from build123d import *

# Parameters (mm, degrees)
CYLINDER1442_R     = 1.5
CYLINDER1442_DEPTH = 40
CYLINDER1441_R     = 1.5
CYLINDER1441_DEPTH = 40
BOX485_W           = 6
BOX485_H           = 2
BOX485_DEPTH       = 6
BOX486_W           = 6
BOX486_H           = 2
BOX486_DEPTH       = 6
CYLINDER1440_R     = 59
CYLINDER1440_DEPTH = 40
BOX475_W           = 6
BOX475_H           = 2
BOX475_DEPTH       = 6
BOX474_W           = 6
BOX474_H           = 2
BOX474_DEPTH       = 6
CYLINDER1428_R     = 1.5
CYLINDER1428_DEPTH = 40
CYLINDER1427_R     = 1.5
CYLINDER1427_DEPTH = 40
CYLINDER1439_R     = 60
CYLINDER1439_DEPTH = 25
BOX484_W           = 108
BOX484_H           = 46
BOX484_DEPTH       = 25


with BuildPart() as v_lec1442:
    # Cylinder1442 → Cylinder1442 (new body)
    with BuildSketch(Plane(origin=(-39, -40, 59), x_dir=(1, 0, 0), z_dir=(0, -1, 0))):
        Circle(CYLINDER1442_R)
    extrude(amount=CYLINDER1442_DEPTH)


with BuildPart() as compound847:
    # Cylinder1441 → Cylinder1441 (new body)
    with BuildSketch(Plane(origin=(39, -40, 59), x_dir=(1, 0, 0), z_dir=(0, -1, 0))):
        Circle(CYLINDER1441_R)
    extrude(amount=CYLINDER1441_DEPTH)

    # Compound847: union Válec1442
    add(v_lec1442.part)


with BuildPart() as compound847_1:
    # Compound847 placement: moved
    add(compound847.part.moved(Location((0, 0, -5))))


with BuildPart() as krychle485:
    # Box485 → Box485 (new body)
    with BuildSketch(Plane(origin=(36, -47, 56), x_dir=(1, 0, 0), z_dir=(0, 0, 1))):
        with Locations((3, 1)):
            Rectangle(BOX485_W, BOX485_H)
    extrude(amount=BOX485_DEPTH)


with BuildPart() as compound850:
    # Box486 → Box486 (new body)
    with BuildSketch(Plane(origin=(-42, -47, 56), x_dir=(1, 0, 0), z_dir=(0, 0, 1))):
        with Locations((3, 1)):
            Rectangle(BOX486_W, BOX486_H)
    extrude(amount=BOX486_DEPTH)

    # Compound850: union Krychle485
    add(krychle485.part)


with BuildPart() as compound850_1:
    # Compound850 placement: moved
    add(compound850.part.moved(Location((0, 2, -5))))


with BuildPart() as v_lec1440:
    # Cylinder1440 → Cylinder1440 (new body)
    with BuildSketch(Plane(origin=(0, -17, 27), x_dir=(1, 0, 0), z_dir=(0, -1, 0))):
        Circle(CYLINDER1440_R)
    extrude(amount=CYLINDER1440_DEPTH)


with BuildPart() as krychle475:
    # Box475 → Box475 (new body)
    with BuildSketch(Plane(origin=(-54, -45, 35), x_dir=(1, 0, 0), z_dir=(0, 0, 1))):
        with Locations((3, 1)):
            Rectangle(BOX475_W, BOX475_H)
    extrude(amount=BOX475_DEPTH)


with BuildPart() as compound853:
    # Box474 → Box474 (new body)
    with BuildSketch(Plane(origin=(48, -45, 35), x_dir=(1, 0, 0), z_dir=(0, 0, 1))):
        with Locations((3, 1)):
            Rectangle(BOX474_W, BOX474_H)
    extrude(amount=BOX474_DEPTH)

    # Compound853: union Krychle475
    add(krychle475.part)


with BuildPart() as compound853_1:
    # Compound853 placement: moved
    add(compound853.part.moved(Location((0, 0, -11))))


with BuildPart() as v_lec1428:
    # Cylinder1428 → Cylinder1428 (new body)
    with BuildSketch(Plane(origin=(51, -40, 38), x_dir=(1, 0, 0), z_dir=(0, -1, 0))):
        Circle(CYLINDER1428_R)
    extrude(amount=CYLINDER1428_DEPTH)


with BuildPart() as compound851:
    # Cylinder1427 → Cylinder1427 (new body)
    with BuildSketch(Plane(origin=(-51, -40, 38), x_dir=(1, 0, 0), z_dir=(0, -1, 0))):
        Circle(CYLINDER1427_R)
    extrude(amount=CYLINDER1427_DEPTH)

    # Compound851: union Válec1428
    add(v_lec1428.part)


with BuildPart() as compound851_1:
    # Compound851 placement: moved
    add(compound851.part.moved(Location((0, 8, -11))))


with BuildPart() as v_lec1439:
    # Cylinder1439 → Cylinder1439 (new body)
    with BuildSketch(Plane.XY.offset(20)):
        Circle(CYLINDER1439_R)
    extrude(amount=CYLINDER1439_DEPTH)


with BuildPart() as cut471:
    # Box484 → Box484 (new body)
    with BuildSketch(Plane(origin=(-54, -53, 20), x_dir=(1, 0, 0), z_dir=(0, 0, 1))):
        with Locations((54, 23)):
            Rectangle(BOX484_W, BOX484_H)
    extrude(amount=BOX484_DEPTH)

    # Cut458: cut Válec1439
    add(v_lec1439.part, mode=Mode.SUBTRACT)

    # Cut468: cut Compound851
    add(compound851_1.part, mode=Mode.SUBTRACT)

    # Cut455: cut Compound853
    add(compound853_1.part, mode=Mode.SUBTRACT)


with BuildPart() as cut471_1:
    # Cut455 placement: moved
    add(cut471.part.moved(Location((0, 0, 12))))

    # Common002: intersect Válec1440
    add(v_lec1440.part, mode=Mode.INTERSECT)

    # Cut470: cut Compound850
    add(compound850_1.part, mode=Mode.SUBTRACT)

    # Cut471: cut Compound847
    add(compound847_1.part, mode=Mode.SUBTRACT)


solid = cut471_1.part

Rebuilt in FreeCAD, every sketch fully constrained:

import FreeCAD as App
import Part
import Sketcher
from FreeCAD import Vector
Q = App.Units.Quantity


def add_polygon(sketch, points):
    """Adds a closed chain of lines whose ends are joined by coincident constraints."""
    first, n = sketch.GeometryCount, len(points)
    for a, b in zip(points, points[1:] + points[:1]):
        sketch.addGeometry(Part.LineSegment(App.Vector(*a, 0), App.Vector(*b, 0)), False)
    for i in range(n):
        sketch.addConstraint(Sketcher.Constraint("Coincident", first + i, 2, first + (i + 1) % n, 1))

doc = App.newDocument("Part")
body = doc.addObject("PartDesign::Body", "Body")

# Sketch on XZ plane
sketch1 = doc.addObject("Sketcher::SketchObject", "Sketch")
body.addObject(sketch1)
sketch1.AttachmentSupport = (doc.XZ_Plane, [""])
sketch1.MapMode = "FlatFace"
sketch1.AttachmentOffset = App.Placement(Vector(0, 0, 40), App.Rotation())
sketch1.addGeometry(Part.Circle(Vector(-39, 59, 0), Vector(0, 0, 1), 1.5), False)
sketch1.addConstraint([
    Sketcher.Constraint("Diameter", 0, Q("3 mm")),
    Sketcher.Constraint("DistanceX", 0, 3, -1, 1, Q("39 mm")),
    Sketcher.Constraint("DistanceY", -1, 1, 0, 3, Q("59 mm")),
])
pad1 = doc.addObject("PartDesign::Pad", "Pad")
body.addObject(pad1)
pad1.Profile = sketch1
pad1.Length = 40
body2 = doc.addObject("PartDesign::Body", "Body001")
body2.AllowCompound = True

# Sketch on XZ plane
sketch2 = doc.addObject("Sketcher::SketchObject", "Sketch001")
body2.addObject(sketch2)
sketch2.AttachmentSupport = (doc.getObject("XZ_Plane001"), [""])
sketch2.MapMode = "FlatFace"
sketch2.AttachmentOffset = App.Placement(Vector(0, 0, 40), App.Rotation())
sketch2.addGeometry(Part.Circle(Vector(39, 59, 0), Vector(0, 0, 1), 1.5), False)
sketch2.addConstraint([
    Sketcher.Constraint("Diameter", 0, Q("3 mm")),
    Sketcher.Constraint("DistanceX", -1, 1, 0, 3, Q("39 mm")),
    Sketcher.Constraint("DistanceY", -1, 1, 0, 3, Q("59 mm")),
])
pad2 = doc.addObject("PartDesign::Pad", "Pad001")
body2.addObject(pad2)
pad2.Profile = sketch2
pad2.Length = 40
doc.recompute()

boolean = doc.addObject("PartDesign::Boolean", "Boolean")
body2.addObject(boolean)
boolean.Type = "Fuse"
boolean.addObjects([body])
body3 = doc.addObject("PartDesign::Body", "Body002")
body3.AllowCompound = True
doc.recompute()

body2.Placement = App.Placement(Vector(0, 0, -5), App.Rotation(Vector(0, 0, 1), 0))
boolean2 = doc.addObject("PartDesign::Boolean", "Boolean001")
body3.addObject(boolean2)
boolean2.Type = "Fuse"
boolean2.addObjects([body2])
body4 = doc.addObject("PartDesign::Body", "Body003")

# Sketch on XY plane
sketch3 = doc.addObject("Sketcher::SketchObject", "Sketch002")
body4.addObject(sketch3)
sketch3.AttachmentSupport = (doc.getObject("XY_Plane003"), [""])
sketch3.MapMode = "FlatFace"
sketch3.AttachmentOffset = App.Placement(Vector(0, 0, 56), App.Rotation())
add_polygon(sketch3, [(36, -45), (36, -47), (42, -47), (42, -45)])  # lines 0-3
sketch3.addConstraint([
    Sketcher.Constraint("Vertical", 0),
    Sketcher.Constraint("Horizontal", 1),
    Sketcher.Constraint("Vertical", 2),
    Sketcher.Constraint("Horizontal", 3),
    Sketcher.Constraint("DistanceX", 1, 1, 1, 2, Q("6 mm")),
    Sketcher.Constraint("DistanceY", 0, 2, 0, 1, Q("2 mm")),
    Sketcher.Constraint("DistanceX", -1, 1, 0, 2, Q("36 mm")),
    Sketcher.Constraint("DistanceY", 0, 2, -1, 1, Q("47 mm")),
])
pad3 = doc.addObject("PartDesign::Pad", "Pad002")
body4.addObject(pad3)
pad3.Profile = sketch3
pad3.Length = 6
body5 = doc.addObject("PartDesign::Body", "Body004")
body5.AllowCompound = True

# Sketch on XY plane
sketch4 = doc.addObject("Sketcher::SketchObject", "Sketch003")
body5.addObject(sketch4)
sketch4.AttachmentSupport = (doc.getObject("XY_Plane004"), [""])
sketch4.MapMode = "FlatFace"
sketch4.AttachmentOffset = App.Placement(Vector(0, 0, 56), App.Rotation())
add_polygon(sketch4, [(-42, -45), (-42, -47), (-36, -47), (-36, -45)])  # lines 0-3
sketch4.addConstraint([
    Sketcher.Constraint("Vertical", 0),
    Sketcher.Constraint("Horizontal", 1),
    Sketcher.Constraint("Vertical", 2),
    Sketcher.Constraint("Horizontal", 3),
    Sketcher.Constraint("DistanceX", 1, 1, 1, 2, Q("6 mm")),
    Sketcher.Constraint("DistanceY", 0, 2, 0, 1, Q("2 mm")),
    Sketcher.Constraint("DistanceX", 0, 2, -1, 1, Q("42 mm")),
    Sketcher.Constraint("DistanceY", 0, 2, -1, 1, Q("47 mm")),
])
pad4 = doc.addObject("PartDesign::Pad", "Pad003")
body5.addObject(pad4)
pad4.Profile = sketch4
pad4.Length = 6
doc.recompute()

boolean3 = doc.addObject("PartDesign::Boolean", "Boolean002")
body5.addObject(boolean3)
boolean3.Type = "Fuse"
boolean3.addObjects([body4])
body6 = doc.addObject("PartDesign::Body", "Body005")
body6.AllowCompound = True
doc.recompute()

body5.Placement = App.Placement(Vector(0, 2, -5), App.Rotation(Vector(0, 0, 1), 0))
boolean4 = doc.addObject("PartDesign::Boolean", "Boolean003")
body6.addObject(boolean4)
boolean4.Type = "Fuse"
boolean4.addObjects([body5])
body7 = doc.addObject("PartDesign::Body", "Body006")

# Sketch on XZ plane
sketch5 = doc.addObject("Sketcher::SketchObject", "Sketch004")
body7.addObject(sketch5)
sketch5.AttachmentSupport = (doc.getObject("XZ_Plane006"), [""])
sketch5.MapMode = "FlatFace"
sketch5.AttachmentOffset = App.Placement(Vector(0, 0, 17), App.Rotation())
sketch5.addGeometry(Part.Circle(Vector(0, 27, 0), Vector(0, 0, 1), 59), False)
sketch5.addConstraint([
    Sketcher.Constraint("PointOnObject", 0, 3, -2),
    Sketcher.Constraint("Diameter", 0, Q("118 mm")),
    Sketcher.Constraint("DistanceY", -1, 1, 0, 3, Q("27 mm")),
])
pad5 = doc.addObject("PartDesign::Pad", "Pad004")
body7.addObject(pad5)
pad5.Profile = sketch5
pad5.Length = 40
body8 = doc.addObject("PartDesign::Body", "Body007")

# Sketch on XY plane
sketch6 = doc.addObject("Sketcher::SketchObject", "Sketch005")
body8.addObject(sketch6)
sketch6.AttachmentSupport = (doc.getObject("XY_Plane007"), [""])
sketch6.MapMode = "FlatFace"
sketch6.AttachmentOffset = App.Placement(Vector(0, 0, 35), App.Rotation())
add_polygon(sketch6, [(-54, -43), (-54, -45), (-48, -45), (-48, -43)])  # lines 0-3
sketch6.addConstraint([
    Sketcher.Constraint("Vertical", 0),
    Sketcher.Constraint("Horizontal", 1),
    Sketcher.Constraint("Vertical", 2),
    Sketcher.Constraint("Horizontal", 3),
    Sketcher.Constraint("DistanceX", 1, 1, 1, 2, Q("6 mm")),
    Sketcher.Constraint("DistanceY", 0, 2, 0, 1, Q("2 mm")),
    Sketcher.Constraint("DistanceX", 0, 2, -1, 1, Q("54 mm")),
    Sketcher.Constraint("DistanceY", 0, 2, -1, 1, Q("45 mm")),
])
pad6 = doc.addObject("PartDesign::Pad", "Pad005")
body8.addObject(pad6)
pad6.Profile = sketch6
pad6.Length = 6
body9 = doc.addObject("PartDesign::Body", "Body008")
body9.AllowCompound = True

# Sketch on XY plane
sketch7 = doc.addObject("Sketcher::SketchObject", "Sketch006")
body9.addObject(sketch7)
sketch7.AttachmentSupport = (doc.getObject("XY_Plane008"), [""])
sketch7.MapMode = "FlatFace"
sketch7.AttachmentOffset = App.Placement(Vector(0, 0, 35), App.Rotation())
add_polygon(sketch7, [(48, -43), (48, -45), (54, -45), (54, -43)])  # lines 0-3
sketch7.addConstraint([
    Sketcher.Constraint("Vertical", 0),
    Sketcher.Constraint("Horizontal", 1),
    Sketcher.Constraint("Vertical", 2),
    Sketcher.Constraint("Horizontal", 3),
    Sketcher.Constraint("DistanceX", 1, 1, 1, 2, Q("6 mm")),
    Sketcher.Constraint("DistanceY", 0, 2, 0, 1, Q("2 mm")),
    Sketcher.Constraint("DistanceX", -1, 1, 0, 2, Q("48 mm")),
    Sketcher.Constraint("DistanceY", 0, 2, -1, 1, Q("45 mm")),
])
pad7 = doc.addObject("PartDesign::Pad", "Pad006")
body9.addObject(pad7)
pad7.Profile = sketch7
pad7.Length = 6
doc.recompute()

boolean5 = doc.addObject("PartDesign::Boolean", "Boolean004")
body9.addObject(boolean5)
boolean5.Type = "Fuse"
boolean5.addObjects([body8])
body10 = doc.addObject("PartDesign::Body", "Body009")
body10.AllowCompound = True
doc.recompute()

body9.Placement = App.Placement(Vector(0, 0, -11), App.Rotation(Vector(0, 0, 1), 0))
boolean6 = doc.addObject("PartDesign::Boolean", "Boolean005")
body10.addObject(boolean6)
boolean6.Type = "Fuse"
boolean6.addObjects([body9])
body11 = doc.addObject("PartDesign::Body", "Body010")

# Sketch on XZ plane
sketch8 = doc.addObject("Sketcher::SketchObject", "Sketch007")
body11.addObject(sketch8)
sketch8.AttachmentSupport = (doc.getObject("XZ_Plane010"), [""])
sketch8.MapMode = "FlatFace"
sketch8.AttachmentOffset = App.Placement(Vector(0, 0, 40), App.Rotation())
sketch8.addGeometry(Part.Circle(Vector(51, 38, 0), Vector(0, 0, 1), 1.5), False)
sketch8.addConstraint([
    Sketcher.Constraint("Diameter", 0, Q("3 mm")),
    Sketcher.Constraint("DistanceX", -1, 1, 0, 3, Q("51 mm")),
    Sketcher.Constraint("DistanceY", -1, 1, 0, 3, Q("38 mm")),
])
pad8 = doc.addObject("PartDesign::Pad", "Pad007")
body11.addObject(pad8)
pad8.Profile = sketch8
pad8.Length = 40
body12 = doc.addObject("PartDesign::Body", "Body011")
body12.AllowCompound = True

# Sketch on XZ plane
sketch9 = doc.addObject("Sketcher::SketchObject", "Sketch008")
body12.addObject(sketch9)
sketch9.AttachmentSupport = (doc.getObject("XZ_Plane011"), [""])
sketch9.MapMode = "FlatFace"
sketch9.AttachmentOffset = App.Placement(Vector(0, 0, 40), App.Rotation())
sketch9.addGeometry(Part.Circle(Vector(-51, 38, 0), Vector(0, 0, 1), 1.5), False)
sketch9.addConstraint([
    Sketcher.Constraint("Diameter", 0, Q("3 mm")),
    Sketcher.Constraint("DistanceX", 0, 3, -1, 1, Q("51 mm")),
    Sketcher.Constraint("DistanceY", -1, 1, 0, 3, Q("38 mm")),
])
pad9 = doc.addObject("PartDesign::Pad", "Pad008")
body12.addObject(pad9)
pad9.Profile = sketch9
pad9.Length = 40
doc.recompute()

boolean7 = doc.addObject("PartDesign::Boolean", "Boolean006")
body12.addObject(boolean7)
boolean7.Type = "Fuse"
boolean7.addObjects([body11])
body13 = doc.addObject("PartDesign::Body", "Body012")
body13.AllowCompound = True
doc.recompute()

body12.Placement = App.Placement(Vector(0, 8, -11), App.Rotation(Vector(0, 0, 1), 0))
boolean8 = doc.addObject("PartDesign::Boolean", "Boolean007")
body13.addObject(boolean8)
boolean8.Type = "Fuse"
boolean8.addObjects([body12])
body14 = doc.addObject("PartDesign::Body", "Body013")

# Sketch on XY plane
sketch10 = doc.addObject("Sketcher::SketchObject", "Sketch009")
body14.addObject(sketch10)
sketch10.AttachmentSupport = (doc.getObject("XY_Plane013"), [""])
sketch10.MapMode = "FlatFace"
sketch10.AttachmentOffset = App.Placement(Vector(0, 0, 20), App.Rotation())
sketch10.addGeometry(Part.Circle(Vector(0, 0, 0), Vector(0, 0, 1), 60), False)
sketch10.addConstraint([
    Sketcher.Constraint("Coincident", 0, 3, -1, 1),
    Sketcher.Constraint("Diameter", 0, Q("120 mm")),
])
pad10 = doc.addObject("PartDesign::Pad", "Pad009")
body14.addObject(pad10)
pad10.Profile = sketch10
pad10.Length = 25
body15 = doc.addObject("PartDesign::Body", "Body014")
body15.AllowCompound = True

# Sketch on XY plane
sketch11 = doc.addObject("Sketcher::SketchObject", "Sketch010")
body15.addObject(sketch11)
sketch11.AttachmentSupport = (doc.getObject("XY_Plane014"), [""])
sketch11.MapMode = "FlatFace"
sketch11.AttachmentOffset = App.Placement(Vector(0, 0, 20), App.Rotation())
add_polygon(sketch11, [(-54, -7), (-54, -53), (54, -53), (54, -7)])  # lines 0-3
sketch11.addConstraint([
    Sketcher.Constraint("Vertical", 0),
    Sketcher.Constraint("Horizontal", 1),
    Sketcher.Constraint("Vertical", 2),
    Sketcher.Constraint("Horizontal", 3),
    Sketcher.Constraint("DistanceX", 1, 1, 1, 2, Q("108 mm")),
    Sketcher.Constraint("DistanceY", 0, 2, 0, 1, Q("46 mm")),
    Sketcher.Constraint("DistanceX", 0, 2, -1, 1, Q("54 mm")),
    Sketcher.Constraint("DistanceY", 0, 2, -1, 1, Q("53 mm")),
])
pad11 = doc.addObject("PartDesign::Pad", "Pad010")
body15.addObject(pad11)
pad11.Profile = sketch11
pad11.Length = 25
doc.recompute()

boolean9 = doc.addObject("PartDesign::Boolean", "Boolean008")
body15.addObject(boolean9)
boolean9.Type = "Cut"
boolean9.addObjects([body14])
doc.recompute()

boolean10 = doc.addObject("PartDesign::Boolean", "Boolean009")
body15.addObject(boolean10)
boolean10.Type = "Cut"
boolean10.addObjects([body13])
doc.recompute()

boolean11 = doc.addObject("PartDesign::Boolean", "Boolean010")
body15.addObject(boolean11)
boolean11.Type = "Cut"
boolean11.addObjects([body10])
body16 = doc.addObject("PartDesign::Body", "Body015")
body16.AllowCompound = True
doc.recompute()

body15.Placement = App.Placement(Vector(0, 0, 12), App.Rotation(Vector(0, 0, 1), 0))
boolean12 = doc.addObject("PartDesign::Boolean", "Boolean011")
body16.addObject(boolean12)
boolean12.Type = "Fuse"
boolean12.addObjects([body15])
doc.recompute()

boolean13 = doc.addObject("PartDesign::Boolean", "Boolean012")
body16.addObject(boolean13)
boolean13.Type = "Common"
boolean13.addObjects([body7])
doc.recompute()

boolean14 = doc.addObject("PartDesign::Boolean", "Boolean013")
body16.addObject(boolean14)
boolean14.Type = "Cut"
boolean14.addObjects([body6])
doc.recompute()

boolean15 = doc.addObject("PartDesign::Boolean", "Boolean014")
body16.addObject(boolean15)
boolean15.Type = "Cut"
boolean15.addObjects([body3])

doc.recompute()
